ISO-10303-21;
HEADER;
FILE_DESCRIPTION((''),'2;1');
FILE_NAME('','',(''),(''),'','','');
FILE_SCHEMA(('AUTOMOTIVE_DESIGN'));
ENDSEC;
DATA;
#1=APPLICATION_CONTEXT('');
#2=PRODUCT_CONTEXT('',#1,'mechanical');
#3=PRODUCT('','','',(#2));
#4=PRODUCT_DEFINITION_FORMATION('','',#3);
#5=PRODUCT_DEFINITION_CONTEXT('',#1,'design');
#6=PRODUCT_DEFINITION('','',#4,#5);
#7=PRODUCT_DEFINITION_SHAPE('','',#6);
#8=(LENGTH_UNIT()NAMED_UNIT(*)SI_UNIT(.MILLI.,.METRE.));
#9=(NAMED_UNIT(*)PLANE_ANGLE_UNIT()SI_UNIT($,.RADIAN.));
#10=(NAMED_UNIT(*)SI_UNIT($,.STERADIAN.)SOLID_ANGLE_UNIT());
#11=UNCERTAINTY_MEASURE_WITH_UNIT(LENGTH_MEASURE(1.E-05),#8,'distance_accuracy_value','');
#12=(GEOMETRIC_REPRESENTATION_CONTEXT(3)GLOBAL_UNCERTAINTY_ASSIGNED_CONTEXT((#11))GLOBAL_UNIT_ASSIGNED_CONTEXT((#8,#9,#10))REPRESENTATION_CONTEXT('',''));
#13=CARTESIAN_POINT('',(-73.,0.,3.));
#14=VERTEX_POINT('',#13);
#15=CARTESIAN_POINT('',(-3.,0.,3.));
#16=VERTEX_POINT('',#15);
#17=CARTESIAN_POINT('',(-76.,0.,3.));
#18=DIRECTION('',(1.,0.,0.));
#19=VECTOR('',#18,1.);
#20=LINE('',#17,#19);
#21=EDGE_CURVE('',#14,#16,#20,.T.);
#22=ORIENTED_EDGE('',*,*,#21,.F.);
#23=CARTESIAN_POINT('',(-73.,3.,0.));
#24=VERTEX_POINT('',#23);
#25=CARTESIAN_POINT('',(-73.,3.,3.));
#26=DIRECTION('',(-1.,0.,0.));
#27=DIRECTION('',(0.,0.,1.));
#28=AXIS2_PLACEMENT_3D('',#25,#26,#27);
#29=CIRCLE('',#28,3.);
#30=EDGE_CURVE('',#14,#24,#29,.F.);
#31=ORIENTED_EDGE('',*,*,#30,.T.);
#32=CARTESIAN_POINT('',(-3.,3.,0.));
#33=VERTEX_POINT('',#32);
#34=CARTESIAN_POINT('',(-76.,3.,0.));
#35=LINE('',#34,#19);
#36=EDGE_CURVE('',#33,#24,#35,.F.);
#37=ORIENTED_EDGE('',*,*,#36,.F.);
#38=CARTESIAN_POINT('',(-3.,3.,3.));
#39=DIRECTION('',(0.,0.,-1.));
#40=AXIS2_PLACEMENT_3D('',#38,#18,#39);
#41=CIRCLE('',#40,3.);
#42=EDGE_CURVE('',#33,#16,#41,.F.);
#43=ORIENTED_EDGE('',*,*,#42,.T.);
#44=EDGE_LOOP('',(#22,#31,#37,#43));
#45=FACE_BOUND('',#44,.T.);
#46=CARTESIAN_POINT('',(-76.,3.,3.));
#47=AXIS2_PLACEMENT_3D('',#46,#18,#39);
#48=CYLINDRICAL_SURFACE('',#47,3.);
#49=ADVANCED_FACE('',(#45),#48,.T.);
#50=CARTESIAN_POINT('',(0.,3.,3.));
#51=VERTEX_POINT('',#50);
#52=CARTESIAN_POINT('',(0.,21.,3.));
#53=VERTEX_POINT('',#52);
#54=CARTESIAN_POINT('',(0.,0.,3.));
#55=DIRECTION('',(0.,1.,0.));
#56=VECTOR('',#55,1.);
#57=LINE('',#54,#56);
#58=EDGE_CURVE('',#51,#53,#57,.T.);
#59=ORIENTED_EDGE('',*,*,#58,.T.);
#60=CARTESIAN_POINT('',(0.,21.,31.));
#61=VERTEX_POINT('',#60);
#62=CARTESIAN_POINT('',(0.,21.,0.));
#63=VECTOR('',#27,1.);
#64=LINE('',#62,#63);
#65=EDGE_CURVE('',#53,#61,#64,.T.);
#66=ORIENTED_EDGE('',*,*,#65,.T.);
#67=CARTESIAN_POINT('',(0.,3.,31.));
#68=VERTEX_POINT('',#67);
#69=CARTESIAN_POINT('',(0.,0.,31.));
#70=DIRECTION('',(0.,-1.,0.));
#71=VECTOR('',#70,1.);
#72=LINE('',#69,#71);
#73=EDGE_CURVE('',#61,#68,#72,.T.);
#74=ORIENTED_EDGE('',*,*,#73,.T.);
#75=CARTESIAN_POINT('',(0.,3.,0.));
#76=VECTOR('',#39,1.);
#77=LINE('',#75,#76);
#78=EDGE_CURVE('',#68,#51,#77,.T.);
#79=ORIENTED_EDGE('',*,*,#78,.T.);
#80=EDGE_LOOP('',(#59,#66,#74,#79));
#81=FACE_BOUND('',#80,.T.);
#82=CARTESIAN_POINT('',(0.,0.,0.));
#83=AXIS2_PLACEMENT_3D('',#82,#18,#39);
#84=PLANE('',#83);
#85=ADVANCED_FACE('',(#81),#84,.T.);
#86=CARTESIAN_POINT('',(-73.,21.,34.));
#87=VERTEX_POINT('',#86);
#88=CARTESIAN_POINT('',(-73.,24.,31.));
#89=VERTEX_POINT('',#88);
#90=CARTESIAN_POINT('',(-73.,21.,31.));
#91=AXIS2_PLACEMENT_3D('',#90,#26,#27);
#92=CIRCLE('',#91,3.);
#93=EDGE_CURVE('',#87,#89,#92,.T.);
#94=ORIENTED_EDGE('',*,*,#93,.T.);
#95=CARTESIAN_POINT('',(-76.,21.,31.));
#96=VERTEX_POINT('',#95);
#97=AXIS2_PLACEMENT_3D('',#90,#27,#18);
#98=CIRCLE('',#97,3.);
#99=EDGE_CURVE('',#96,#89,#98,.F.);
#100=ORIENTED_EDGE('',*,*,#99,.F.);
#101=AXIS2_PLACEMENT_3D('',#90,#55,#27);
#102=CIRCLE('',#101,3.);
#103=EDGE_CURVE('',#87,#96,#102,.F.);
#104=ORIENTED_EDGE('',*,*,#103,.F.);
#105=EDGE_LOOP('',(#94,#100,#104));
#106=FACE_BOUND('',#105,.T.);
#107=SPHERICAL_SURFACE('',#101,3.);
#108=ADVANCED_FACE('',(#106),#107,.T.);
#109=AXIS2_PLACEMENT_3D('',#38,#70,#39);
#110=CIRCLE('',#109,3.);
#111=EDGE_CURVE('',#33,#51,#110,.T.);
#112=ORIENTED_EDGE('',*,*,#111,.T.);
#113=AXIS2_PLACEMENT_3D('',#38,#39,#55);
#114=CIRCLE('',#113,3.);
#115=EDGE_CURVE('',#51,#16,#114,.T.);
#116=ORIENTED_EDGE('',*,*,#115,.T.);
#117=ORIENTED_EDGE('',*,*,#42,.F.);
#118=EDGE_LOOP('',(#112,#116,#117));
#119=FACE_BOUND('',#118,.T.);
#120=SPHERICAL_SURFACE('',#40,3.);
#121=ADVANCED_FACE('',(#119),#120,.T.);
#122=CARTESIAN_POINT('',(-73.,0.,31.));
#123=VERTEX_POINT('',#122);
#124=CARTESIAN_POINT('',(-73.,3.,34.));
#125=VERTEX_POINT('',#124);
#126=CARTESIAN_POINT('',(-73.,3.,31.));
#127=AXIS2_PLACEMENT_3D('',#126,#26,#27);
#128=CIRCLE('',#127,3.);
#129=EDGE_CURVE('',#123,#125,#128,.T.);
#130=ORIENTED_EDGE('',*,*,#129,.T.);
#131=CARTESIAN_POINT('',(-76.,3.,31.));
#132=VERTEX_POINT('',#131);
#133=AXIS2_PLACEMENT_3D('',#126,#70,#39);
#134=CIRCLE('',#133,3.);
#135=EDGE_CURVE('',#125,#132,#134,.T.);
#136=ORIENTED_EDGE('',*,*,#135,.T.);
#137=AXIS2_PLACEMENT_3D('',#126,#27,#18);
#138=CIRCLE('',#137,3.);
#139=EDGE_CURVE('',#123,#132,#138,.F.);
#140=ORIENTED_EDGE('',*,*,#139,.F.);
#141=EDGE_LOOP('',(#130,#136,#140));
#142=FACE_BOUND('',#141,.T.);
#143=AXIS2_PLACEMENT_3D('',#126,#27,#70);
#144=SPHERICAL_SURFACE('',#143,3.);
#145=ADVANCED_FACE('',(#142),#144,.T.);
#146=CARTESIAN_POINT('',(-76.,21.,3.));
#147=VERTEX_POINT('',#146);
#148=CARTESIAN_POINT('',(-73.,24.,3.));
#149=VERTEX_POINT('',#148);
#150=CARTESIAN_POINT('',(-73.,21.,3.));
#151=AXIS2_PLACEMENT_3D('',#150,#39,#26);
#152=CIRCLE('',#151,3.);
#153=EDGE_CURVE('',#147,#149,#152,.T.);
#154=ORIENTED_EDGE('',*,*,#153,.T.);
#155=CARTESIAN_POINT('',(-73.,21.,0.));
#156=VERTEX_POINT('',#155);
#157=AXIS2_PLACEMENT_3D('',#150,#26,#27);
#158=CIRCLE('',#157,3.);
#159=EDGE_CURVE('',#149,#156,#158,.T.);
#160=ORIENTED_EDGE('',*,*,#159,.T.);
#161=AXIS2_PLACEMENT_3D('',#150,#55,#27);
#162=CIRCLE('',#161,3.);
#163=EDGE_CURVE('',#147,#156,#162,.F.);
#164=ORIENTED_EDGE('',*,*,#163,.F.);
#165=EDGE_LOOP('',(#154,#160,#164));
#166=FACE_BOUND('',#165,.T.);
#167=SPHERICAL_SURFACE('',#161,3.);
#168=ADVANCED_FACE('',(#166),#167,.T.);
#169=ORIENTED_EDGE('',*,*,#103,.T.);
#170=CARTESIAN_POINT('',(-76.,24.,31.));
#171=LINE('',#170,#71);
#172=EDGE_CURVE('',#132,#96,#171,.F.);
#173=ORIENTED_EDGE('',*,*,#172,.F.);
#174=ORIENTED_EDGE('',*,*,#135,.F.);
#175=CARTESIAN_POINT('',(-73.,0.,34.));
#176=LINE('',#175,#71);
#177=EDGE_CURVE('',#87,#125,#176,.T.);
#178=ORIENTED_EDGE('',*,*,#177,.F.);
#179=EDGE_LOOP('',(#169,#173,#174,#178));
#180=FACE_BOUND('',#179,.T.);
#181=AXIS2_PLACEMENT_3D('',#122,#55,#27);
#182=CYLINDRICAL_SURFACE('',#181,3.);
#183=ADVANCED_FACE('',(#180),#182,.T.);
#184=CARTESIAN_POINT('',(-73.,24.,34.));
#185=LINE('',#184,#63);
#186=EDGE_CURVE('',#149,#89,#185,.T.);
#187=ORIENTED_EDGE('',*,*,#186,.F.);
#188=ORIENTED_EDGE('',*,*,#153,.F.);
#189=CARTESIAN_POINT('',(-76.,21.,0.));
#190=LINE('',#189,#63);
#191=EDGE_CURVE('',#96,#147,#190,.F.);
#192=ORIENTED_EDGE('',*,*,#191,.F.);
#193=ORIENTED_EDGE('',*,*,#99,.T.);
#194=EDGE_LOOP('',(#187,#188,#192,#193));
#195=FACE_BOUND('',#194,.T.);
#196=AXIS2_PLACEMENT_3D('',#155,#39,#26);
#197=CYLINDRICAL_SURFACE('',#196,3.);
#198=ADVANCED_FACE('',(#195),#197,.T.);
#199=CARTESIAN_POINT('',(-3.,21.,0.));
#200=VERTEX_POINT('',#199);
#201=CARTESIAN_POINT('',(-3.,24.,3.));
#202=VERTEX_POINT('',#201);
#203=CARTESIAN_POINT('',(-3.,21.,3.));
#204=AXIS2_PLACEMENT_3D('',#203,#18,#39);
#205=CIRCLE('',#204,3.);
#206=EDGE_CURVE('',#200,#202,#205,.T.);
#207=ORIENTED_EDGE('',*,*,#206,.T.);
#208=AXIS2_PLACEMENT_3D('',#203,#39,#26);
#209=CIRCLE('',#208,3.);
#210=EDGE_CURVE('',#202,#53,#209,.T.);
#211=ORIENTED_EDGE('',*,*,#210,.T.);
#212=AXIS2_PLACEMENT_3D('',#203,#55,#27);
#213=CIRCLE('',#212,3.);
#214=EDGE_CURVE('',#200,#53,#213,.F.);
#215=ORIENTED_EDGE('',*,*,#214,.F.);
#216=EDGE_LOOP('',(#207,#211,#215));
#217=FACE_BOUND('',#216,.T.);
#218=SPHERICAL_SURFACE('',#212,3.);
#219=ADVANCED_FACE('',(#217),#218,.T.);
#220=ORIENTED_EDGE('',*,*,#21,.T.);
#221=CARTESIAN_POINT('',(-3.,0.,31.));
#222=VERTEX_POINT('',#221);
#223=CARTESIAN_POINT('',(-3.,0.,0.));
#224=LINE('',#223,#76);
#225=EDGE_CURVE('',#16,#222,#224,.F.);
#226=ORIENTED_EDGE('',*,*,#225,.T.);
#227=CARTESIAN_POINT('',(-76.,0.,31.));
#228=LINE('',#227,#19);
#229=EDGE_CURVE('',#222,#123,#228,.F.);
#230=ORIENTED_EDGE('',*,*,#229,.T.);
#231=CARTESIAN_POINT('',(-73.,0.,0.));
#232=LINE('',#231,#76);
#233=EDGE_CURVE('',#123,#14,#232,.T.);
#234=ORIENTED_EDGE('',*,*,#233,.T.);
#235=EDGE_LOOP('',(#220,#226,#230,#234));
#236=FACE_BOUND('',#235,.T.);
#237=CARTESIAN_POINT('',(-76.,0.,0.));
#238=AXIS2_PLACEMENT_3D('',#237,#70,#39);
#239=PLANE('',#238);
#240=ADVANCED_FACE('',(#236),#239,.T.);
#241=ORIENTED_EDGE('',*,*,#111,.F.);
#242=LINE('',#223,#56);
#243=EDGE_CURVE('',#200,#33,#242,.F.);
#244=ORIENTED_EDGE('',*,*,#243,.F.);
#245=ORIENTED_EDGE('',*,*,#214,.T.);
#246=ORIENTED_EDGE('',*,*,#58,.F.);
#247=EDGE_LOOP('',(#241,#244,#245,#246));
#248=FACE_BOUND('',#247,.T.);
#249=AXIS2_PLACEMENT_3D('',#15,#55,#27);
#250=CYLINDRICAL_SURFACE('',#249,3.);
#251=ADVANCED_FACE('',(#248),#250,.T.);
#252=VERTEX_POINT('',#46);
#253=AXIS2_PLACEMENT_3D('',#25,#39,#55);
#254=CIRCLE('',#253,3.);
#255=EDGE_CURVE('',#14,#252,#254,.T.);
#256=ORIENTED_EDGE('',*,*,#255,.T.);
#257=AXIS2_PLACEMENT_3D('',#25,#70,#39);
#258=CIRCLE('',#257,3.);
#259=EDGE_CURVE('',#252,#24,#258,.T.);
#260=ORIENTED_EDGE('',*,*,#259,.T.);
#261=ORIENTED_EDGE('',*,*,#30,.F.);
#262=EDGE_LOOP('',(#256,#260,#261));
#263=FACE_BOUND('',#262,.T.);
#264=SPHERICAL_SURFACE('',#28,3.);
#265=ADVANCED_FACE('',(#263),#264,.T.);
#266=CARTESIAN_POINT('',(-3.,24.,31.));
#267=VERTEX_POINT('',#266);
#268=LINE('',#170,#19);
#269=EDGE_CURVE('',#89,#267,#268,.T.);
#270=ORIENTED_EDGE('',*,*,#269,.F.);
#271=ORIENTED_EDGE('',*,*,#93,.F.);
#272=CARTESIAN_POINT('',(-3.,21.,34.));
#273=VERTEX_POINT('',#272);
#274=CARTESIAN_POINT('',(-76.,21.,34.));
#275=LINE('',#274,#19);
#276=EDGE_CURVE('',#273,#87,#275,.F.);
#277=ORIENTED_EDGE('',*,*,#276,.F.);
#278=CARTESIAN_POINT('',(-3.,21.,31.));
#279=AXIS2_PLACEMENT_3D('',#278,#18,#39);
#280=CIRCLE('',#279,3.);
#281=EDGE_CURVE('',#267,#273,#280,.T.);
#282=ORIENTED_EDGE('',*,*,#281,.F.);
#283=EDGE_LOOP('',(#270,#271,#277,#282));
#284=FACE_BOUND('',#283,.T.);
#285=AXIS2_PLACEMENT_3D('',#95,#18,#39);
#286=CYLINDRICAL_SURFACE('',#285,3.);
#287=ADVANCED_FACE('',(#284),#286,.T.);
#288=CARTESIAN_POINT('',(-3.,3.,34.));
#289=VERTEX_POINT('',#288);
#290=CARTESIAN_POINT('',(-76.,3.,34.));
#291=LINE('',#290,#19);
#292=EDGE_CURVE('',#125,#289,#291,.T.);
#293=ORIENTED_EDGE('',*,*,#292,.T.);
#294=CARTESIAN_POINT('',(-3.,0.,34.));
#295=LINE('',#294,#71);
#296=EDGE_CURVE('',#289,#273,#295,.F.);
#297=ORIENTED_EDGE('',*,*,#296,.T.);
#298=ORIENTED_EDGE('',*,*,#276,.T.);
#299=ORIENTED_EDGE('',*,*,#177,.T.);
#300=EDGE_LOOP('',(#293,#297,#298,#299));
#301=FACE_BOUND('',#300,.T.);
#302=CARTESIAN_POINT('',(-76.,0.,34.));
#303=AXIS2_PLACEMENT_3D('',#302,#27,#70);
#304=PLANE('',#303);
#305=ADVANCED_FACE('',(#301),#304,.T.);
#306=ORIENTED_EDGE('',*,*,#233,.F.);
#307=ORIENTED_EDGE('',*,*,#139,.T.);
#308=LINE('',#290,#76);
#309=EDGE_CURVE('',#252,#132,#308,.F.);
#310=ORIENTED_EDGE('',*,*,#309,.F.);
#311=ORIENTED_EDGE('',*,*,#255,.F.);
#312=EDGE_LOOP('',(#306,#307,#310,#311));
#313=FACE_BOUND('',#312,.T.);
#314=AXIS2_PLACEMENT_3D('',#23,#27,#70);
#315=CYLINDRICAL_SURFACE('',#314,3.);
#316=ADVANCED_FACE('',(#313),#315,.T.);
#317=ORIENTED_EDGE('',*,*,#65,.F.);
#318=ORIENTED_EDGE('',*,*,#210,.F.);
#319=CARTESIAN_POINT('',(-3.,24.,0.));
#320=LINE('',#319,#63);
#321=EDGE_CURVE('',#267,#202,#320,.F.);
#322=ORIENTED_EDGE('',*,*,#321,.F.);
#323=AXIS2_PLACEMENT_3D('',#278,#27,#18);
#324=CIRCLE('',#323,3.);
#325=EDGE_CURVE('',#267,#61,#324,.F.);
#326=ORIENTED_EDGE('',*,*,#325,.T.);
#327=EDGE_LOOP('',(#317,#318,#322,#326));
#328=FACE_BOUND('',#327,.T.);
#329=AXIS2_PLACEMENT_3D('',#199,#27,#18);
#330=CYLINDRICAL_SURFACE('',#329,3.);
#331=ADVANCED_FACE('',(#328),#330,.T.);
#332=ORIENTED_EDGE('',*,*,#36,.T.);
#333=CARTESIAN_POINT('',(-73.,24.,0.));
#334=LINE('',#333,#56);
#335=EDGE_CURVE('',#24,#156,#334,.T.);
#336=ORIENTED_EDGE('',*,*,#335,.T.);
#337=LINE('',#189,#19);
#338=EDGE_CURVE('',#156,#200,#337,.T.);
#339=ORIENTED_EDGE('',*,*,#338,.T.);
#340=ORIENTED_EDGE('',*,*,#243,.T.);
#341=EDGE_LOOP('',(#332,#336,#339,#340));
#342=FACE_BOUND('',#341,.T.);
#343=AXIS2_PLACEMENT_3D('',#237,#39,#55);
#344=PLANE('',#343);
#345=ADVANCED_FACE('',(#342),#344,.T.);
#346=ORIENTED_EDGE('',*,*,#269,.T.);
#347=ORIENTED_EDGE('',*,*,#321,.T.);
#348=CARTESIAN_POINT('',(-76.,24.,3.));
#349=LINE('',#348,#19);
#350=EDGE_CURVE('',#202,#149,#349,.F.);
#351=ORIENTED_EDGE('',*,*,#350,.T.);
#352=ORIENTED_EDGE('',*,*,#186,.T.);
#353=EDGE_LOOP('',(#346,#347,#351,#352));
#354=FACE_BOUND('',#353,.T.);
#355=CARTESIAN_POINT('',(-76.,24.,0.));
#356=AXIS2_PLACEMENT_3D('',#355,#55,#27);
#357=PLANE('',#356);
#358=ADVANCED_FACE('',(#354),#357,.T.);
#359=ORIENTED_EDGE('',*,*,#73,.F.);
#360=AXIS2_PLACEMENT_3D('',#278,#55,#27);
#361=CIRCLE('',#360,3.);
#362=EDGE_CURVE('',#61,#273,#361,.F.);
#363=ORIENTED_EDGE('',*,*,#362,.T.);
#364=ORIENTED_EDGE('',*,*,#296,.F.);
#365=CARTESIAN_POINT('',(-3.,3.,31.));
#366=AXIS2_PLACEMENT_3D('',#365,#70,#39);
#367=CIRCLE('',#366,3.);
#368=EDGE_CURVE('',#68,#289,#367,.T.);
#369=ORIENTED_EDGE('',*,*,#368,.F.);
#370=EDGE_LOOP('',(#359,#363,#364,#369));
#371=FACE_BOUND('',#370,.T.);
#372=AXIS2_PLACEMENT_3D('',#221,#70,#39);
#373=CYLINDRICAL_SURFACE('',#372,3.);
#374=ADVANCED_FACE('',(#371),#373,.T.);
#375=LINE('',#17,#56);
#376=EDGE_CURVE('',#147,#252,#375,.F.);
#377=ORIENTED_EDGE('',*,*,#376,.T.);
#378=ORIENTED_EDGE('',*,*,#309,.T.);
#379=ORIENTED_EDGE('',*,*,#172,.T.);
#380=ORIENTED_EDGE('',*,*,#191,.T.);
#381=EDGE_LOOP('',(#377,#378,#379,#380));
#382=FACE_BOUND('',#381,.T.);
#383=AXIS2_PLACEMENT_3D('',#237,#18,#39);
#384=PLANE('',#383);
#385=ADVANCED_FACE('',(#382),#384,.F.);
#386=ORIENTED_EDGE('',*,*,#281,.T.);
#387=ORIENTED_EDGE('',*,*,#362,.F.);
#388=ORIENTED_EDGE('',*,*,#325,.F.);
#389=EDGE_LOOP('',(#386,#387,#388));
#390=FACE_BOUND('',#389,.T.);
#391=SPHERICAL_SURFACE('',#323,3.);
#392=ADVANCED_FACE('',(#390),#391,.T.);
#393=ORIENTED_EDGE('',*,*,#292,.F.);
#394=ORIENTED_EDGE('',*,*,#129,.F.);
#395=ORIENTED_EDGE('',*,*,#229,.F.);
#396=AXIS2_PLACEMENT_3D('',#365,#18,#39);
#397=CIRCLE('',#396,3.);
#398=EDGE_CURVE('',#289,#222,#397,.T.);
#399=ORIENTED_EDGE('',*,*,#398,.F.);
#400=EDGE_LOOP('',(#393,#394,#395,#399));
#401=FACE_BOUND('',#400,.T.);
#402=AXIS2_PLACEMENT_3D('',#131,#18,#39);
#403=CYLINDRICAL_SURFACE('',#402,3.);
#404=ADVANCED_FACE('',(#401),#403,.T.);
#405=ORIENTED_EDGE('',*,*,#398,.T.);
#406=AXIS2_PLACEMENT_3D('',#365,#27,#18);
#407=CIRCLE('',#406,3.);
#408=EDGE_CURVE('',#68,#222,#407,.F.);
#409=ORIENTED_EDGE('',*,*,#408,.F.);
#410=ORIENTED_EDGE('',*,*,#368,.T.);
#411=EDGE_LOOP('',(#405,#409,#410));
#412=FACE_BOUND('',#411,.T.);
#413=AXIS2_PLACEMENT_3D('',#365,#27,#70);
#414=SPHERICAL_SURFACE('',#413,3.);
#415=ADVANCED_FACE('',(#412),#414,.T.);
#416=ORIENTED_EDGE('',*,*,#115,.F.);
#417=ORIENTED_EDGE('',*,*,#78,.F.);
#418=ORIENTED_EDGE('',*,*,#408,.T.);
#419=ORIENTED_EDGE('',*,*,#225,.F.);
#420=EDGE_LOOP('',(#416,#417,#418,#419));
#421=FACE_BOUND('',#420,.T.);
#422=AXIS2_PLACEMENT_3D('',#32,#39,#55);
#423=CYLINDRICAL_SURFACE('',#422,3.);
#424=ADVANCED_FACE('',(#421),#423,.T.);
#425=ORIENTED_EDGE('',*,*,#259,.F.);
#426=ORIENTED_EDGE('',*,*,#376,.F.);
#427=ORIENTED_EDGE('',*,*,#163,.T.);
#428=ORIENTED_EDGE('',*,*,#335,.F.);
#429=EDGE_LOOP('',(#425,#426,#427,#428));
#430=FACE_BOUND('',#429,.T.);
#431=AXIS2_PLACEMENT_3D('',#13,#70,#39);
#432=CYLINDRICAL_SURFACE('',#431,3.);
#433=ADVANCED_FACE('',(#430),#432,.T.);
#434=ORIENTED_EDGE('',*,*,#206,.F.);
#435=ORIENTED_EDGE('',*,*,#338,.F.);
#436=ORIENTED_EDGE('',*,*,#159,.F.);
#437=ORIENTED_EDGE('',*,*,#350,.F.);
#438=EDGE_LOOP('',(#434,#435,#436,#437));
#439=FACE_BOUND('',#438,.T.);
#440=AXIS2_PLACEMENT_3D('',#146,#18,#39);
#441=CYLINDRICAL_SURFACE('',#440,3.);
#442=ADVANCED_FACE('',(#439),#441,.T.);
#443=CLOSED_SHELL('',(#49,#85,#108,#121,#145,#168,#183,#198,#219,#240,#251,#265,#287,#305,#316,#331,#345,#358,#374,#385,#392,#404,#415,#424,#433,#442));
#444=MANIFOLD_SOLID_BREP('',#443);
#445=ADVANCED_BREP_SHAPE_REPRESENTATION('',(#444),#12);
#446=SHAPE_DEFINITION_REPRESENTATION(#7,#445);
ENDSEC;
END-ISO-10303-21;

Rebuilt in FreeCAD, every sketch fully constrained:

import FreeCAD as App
import Part
import Sketcher
from FreeCAD import Vector


def add_polygon(sketch, points):
    """Adds a closed chain of lines whose ends are joined by coincident constraints."""
    first, n = sketch.GeometryCount, len(points)
    for a, b in zip(points, points[1:] + points[:1]):
        sketch.addGeometry(Part.LineSegment(App.Vector(*a, 0), App.Vector(*b, 0)), False)
    for i in range(n):
        sketch.addConstraint(Sketcher.Constraint("Coincident", first + i, 2, first + (i + 1) % n, 1))

doc = App.newDocument("Part")
body = doc.addObject("PartDesign::Body", "Body")

# Sketch on YZ plane
sketch1 = body.newObject("Sketcher::SketchObject", "Sketch")
sketch1.AttachmentSupport = (doc.getObject("YZ_Plane"), [""])
sketch1.MapMode = "FlatFace"
add_polygon(sketch1, [(24, 34), (0, 34), (0, 0), (24, 0)])  # lines 0-3
sketch1.addConstraint([
    Sketcher.Constraint("Horizontal", 0),
    Sketcher.Constraint("Vertical", 1),
    Sketcher.Constraint("Horizontal", 2),
    Sketcher.Constraint("Vertical", 3),
    Sketcher.Constraint("Coincident", 1, 2, -1, 1),
    Sketcher.Constraint("DistanceX", 0, 2, 0, 1, 24.0),
    Sketcher.Constraint("DistanceY", 1, 2, 1, 1, 34.0),
])
pad1 = body.newObject("PartDesign::Pad", "Pad")
pad1.Profile = sketch1
pad1.Length = 76
pad1.Reversed = True
doc.recompute()

fillet = body.newObject("PartDesign::Fillet", "Fillet")
fillet.Base = (pad1, ["Edge1"])
fillet.UseAllEdges = True
fillet.Radius = 3

doc.recompute()
